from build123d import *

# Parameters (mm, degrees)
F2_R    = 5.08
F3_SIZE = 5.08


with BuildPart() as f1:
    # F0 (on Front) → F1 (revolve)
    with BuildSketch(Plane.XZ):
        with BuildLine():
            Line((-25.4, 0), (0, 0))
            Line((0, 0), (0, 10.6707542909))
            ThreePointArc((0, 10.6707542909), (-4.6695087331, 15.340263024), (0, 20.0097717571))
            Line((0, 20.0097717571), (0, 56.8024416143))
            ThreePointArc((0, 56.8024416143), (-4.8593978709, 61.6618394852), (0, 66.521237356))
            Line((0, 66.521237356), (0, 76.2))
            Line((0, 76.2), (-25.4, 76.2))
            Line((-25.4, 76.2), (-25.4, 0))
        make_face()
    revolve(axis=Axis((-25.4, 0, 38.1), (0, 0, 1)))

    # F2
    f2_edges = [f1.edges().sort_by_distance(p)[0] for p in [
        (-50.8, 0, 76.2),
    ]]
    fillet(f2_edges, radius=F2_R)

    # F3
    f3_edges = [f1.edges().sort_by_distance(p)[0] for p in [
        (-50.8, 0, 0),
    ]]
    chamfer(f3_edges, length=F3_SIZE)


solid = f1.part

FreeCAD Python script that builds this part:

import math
import FreeCAD as App
import Part
import Sketcher
Q = App.Units.Quantity


def edges_at(feature, points):
    """Names of the edges that pass closest to the given points."""
    edges = feature.Shape.Edges
    near = lambda p: min(range(len(edges)), key=lambda i: edges[i].distToShape(Part.Vertex(*p))[0])
    return sorted({f"Edge{near(p) + 1}" for p in points})

doc = App.newDocument("Part")
params = doc.addObject("Spreadsheet::Sheet", "Params")
for row, (alias, value) in enumerate([
    ("sketch1_width", "1 in"),
    ("sketch1_height", "3 in"),
    ("revolution_angle", "360 deg"),
    ("fillet_radius", "0.2 in"),
    ("chamfer_size", "0.2 in"),
], start=1):
    params.set(f"A{row}", alias)
    params.set(f"B{row}", "=" + value)
    params.setAlias(f"B{row}", alias)

body = doc.addObject("PartDesign::Body", "Body")

# Sketch on XZ plane
sketch1 = body.newObject("Sketcher::SketchObject", "Sketch")
sketch1.AttachmentSupport = (doc.getObject("XZ_Plane"), [""])
sketch1.MapMode = "FlatFace"
sketch1.addGeometry([
    Part.LineSegment(App.Vector(-25.4, 0, 0), App.Vector(0, 0, 0)),  # 0
    Part.LineSegment(App.Vector(0, 0, 0), App.Vector(0, 10.670754, 0)),  # 1
    Part.ArcOfCircle(Part.Circle(App.Vector(0, 15.340263, 0), App.Vector(0, 0, 1), 4.669509), math.radians(90), math.radians(270)),  # 2
    Part.LineSegment(App.Vector(0, 20.009772, 0), App.Vector(0, 56.802442, 0)),  # 3
    Part.ArcOfCircle(Part.Circle(App.Vector(0, 61.661839, 0), App.Vector(0, 0, 1), 4.859398), math.radians(90), math.radians(270)),  # 4
    Part.LineSegment(App.Vector(0, 66.521237, 0), App.Vector(0, 76.2, 0)),  # 5
    Part.LineSegment(App.Vector(0, 76.2, 0), App.Vector(-25.4, 76.2, 0)),  # 6
    Part.LineSegment(App.Vector(-25.4, 76.2, 0), App.Vector(-25.4, 0, 0)),  # 7
], False)
sketch1.addGeometry(Part.LineSegment(App.Vector(-25.4, 0, 0), App.Vector(-25.4, 76.2, 0)), True)  # axis
sketch1.addConstraint([
    Sketcher.Constraint("Coincident", 0, 2, 1, 1),
    Sketcher.Constraint("Coincident", 1, 2, 2, 2),
    Sketcher.Constraint("Coincident", 2, 1, 3, 1),
    Sketcher.Constraint("Coincident", 3, 2, 4, 2),
    Sketcher.Constraint("Coincident", 4, 1, 5, 1),
    Sketcher.Constraint("Coincident", 5, 2, 6, 1),
    Sketcher.Constraint("Coincident", 6, 2, 7, 1),
    Sketcher.Constraint("Coincident", 7, 2, 0, 1),
    Sketcher.Constraint("Horizontal", 0),
    Sketcher.Constraint("Vertical", 1),
    Sketcher.Constraint("Vertical", 3),
    Sketcher.Constraint("Vertical", 5),
    Sketcher.Constraint("Horizontal", 6),
    Sketcher.Constraint("Vertical", 7),
    Sketcher.Constraint("Vertical", 8),
    Sketcher.Constraint("Coincident", 0, 2, -1, 1),
    Sketcher.Constraint("Coincident", 8, 1, 7, 2),
    Sketcher.Constraint("PointOnObject", 2, 3, -2),
    Sketcher.Constraint("PointOnObject", 4, 3, -2),
    Sketcher.Constraint("PointOnObject", 2, 1, -2),
    Sketcher.Constraint("PointOnObject", 4, 1, -2),
    Sketcher.Constraint("Horizontal", 5, 2, 8, 2),
    Sketcher.Constraint("DistanceX", 0, 1, 0, 2, Q("1 in")),
    Sketcher.Constraint("DistanceY", 7, 2, 7, 1, Q("3 in")),
    Sketcher.Constraint("Radius", 2, 4.669509),
    Sketcher.Constraint("Radius", 4, 4.859398),
    Sketcher.Constraint("DistanceY", 3, 1, 3, 2, 36.79267),
    Sketcher.Constraint("DistanceY", 1, 1, 1, 2, 10.670754),
])
sketch1.setExpression("Constraints[22]", "Params.sketch1_width")
sketch1.setExpression("Constraints[23]", "Params.sketch1_height")
revolution = body.newObject("PartDesign::Revolution", "Revolution")
revolution.Profile = sketch1
revolution.ReferenceAxis = (sketch1, ["Axis0"])
revolution.setExpression("Angle", "Params.revolution_angle")
doc.recompute()

fillet = body.newObject("PartDesign::Fillet", "Fillet")
fillet.Base = (revolution, edges_at(revolution, [(-50.8, 0, 76.2)]))
fillet.setExpression("Radius", "Params.fillet_radius")
doc.recompute()

chamfer = body.newObject("PartDesign::Chamfer", "Chamfer")
chamfer.Base = (fillet, edges_at(fillet, [(-50.8, 0, 0)]))
chamfer.setExpression("Size", "Params.chamfer_size")

doc.recompute()
